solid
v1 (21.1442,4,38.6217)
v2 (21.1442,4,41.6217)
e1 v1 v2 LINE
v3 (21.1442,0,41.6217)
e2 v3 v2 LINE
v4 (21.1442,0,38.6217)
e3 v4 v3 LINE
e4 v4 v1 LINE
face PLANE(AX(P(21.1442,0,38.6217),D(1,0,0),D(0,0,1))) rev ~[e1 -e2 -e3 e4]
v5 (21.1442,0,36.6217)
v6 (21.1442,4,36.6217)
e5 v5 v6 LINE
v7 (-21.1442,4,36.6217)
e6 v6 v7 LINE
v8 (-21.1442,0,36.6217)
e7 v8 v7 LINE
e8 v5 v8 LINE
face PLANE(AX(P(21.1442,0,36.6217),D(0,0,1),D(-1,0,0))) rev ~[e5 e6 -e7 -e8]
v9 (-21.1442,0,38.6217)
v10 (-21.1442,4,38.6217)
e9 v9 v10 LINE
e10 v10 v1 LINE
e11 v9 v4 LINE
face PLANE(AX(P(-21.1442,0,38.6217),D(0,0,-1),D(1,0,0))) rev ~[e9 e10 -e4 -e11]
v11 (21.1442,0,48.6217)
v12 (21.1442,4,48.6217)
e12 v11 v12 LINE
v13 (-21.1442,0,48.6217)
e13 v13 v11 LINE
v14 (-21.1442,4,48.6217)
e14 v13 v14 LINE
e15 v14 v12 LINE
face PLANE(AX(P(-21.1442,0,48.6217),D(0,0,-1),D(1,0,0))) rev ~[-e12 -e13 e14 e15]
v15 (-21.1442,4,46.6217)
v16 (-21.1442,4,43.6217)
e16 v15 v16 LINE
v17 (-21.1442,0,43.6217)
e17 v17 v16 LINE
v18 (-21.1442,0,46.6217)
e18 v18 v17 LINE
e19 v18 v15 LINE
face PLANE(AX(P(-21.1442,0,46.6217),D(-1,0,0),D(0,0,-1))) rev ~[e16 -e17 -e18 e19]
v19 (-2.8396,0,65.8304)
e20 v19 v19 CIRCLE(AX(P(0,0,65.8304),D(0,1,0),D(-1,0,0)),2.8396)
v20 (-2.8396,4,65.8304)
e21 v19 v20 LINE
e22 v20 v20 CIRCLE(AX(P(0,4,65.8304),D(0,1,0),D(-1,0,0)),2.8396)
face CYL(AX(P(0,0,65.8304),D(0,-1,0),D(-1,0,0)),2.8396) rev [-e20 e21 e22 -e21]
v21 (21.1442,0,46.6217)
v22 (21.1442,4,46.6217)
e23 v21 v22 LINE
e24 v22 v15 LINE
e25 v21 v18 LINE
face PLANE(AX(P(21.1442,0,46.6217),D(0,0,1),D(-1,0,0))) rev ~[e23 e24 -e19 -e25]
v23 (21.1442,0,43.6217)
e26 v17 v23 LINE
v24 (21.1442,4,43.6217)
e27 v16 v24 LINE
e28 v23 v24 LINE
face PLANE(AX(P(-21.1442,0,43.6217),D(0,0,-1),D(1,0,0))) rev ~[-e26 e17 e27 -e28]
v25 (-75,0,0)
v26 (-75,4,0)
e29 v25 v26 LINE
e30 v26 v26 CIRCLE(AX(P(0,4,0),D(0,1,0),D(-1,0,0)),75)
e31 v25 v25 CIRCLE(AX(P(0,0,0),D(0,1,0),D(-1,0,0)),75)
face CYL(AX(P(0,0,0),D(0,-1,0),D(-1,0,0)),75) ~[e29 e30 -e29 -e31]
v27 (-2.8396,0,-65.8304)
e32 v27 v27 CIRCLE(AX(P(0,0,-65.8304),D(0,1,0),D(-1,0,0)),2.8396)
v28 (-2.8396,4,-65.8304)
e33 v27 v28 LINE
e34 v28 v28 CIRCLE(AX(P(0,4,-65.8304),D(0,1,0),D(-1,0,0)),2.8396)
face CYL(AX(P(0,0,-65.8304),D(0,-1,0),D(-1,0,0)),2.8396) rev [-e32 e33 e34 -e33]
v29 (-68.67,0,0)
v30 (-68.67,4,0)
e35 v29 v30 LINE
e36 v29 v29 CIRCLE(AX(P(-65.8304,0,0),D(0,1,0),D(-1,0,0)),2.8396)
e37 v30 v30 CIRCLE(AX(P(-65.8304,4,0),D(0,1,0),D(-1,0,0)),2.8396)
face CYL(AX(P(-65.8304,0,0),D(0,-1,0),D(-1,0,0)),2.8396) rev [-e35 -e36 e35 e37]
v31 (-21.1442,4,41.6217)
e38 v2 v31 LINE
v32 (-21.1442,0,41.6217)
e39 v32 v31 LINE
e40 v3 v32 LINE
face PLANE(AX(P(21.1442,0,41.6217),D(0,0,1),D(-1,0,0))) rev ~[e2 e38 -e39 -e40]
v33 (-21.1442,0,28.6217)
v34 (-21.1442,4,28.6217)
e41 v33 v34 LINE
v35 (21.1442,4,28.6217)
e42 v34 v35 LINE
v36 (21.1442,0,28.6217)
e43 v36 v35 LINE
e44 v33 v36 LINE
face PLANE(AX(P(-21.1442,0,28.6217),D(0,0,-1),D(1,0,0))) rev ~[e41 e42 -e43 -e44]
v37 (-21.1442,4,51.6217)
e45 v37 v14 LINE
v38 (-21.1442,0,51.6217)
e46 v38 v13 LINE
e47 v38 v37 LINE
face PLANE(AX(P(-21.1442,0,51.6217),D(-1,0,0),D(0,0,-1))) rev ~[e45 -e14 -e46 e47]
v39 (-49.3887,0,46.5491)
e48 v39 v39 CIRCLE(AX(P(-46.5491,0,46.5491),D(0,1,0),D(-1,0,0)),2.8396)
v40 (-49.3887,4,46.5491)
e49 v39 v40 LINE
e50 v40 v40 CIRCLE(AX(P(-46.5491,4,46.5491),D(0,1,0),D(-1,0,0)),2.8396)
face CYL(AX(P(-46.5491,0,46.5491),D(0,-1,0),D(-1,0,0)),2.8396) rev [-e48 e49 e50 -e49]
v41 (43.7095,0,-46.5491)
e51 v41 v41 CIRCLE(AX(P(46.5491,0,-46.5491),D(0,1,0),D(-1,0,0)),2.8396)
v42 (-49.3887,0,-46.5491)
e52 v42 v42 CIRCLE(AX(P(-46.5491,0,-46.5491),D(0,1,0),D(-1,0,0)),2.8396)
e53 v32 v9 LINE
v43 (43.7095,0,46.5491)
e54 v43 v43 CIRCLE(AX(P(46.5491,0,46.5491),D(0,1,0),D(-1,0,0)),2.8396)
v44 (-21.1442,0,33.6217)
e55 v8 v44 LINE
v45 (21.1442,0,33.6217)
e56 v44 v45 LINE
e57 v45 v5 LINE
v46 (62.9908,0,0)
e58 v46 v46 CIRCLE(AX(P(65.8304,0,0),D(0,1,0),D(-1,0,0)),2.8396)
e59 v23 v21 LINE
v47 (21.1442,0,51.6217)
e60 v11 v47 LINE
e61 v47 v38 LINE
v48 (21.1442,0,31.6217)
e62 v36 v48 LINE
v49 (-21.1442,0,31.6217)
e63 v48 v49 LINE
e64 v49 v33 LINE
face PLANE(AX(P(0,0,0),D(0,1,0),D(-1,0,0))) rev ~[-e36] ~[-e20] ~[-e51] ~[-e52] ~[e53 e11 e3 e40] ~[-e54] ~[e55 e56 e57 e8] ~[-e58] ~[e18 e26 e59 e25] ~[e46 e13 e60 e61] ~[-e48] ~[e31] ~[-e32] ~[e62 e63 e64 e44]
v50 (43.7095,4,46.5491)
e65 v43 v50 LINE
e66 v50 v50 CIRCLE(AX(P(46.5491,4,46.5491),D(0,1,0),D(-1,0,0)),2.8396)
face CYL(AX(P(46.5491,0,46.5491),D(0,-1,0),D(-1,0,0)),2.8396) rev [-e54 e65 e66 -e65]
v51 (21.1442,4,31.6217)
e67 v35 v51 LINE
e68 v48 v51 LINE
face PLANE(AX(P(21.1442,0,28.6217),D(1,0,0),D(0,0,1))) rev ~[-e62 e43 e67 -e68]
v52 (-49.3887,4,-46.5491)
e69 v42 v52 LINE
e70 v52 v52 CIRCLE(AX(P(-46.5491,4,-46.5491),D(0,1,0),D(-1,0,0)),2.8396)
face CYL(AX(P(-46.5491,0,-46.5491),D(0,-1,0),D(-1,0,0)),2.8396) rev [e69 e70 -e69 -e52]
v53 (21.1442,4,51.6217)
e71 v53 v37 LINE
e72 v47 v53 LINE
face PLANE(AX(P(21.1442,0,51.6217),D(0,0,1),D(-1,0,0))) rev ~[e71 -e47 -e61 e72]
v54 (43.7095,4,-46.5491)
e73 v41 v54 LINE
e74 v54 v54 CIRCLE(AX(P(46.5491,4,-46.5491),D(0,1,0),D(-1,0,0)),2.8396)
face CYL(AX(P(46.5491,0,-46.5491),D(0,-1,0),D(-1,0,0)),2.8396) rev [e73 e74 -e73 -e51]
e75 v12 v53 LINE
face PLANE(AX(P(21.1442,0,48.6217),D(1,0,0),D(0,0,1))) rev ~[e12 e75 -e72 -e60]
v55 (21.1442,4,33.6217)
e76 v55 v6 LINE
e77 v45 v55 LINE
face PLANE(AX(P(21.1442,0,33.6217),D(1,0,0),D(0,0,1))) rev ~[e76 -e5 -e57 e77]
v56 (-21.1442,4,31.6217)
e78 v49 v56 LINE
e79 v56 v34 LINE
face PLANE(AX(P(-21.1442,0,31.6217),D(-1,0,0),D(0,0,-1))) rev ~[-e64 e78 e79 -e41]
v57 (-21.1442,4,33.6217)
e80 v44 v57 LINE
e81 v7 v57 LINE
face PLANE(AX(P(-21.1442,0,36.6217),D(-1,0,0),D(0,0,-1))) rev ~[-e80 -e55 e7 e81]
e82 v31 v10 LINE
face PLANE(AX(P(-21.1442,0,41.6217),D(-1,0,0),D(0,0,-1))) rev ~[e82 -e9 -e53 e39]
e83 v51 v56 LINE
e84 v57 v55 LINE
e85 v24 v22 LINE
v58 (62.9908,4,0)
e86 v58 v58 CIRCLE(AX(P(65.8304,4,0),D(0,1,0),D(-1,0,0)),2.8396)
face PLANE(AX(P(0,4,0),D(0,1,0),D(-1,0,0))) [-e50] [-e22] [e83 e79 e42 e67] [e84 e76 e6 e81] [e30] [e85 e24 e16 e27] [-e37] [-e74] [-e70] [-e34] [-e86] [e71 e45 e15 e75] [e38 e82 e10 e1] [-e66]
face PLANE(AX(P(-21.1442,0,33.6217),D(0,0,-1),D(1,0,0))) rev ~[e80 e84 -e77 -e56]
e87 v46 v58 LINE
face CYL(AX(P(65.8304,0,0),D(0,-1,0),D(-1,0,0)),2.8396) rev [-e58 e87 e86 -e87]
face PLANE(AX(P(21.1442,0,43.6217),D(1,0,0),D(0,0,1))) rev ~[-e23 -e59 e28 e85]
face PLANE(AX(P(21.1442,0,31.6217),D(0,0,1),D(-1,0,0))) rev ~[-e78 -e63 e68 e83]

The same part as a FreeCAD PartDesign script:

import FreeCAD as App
import Part
import Sketcher
Q = App.Units.Quantity

doc = App.newDocument("Part")
body = doc.addObject("PartDesign::Body", "Body")

sketch1 = doc.addObject("Sketcher::SketchObject", "Sketch")
body.addObject(sketch1)
sketch1.AttachmentSupport = (doc.XZ_Plane, [""])
sketch1.MapMode = "FlatFace"
sketch1.addGeometry(Part.Circle(App.Vector(0, 0, 0), App.Vector(0, 0, 1), 75), False)
sketch1.addGeometry(Part.Circle(App.Vector(46.5491, -46.5491, 0), App.Vector(0, 0, 1), 2.8396), False)
sketch1.addGeometry(Part.Circle(App.Vector(0, -65.8304, 0), App.Vector(0, 0, 1), 2.8396), False)
sketch1.addGeometry(Part.Circle(App.Vector(-46.5491, -46.5491, 0), App.Vector(0, 0, 1), 2.8396), False)
sketch1.addGeometry(Part.Circle(App.Vector(65.8304, 0, 0), App.Vector(0, 0, 1), 2.8396), False)
sketch1.addGeometry(Part.Circle(App.Vector(46.5491, 46.5491, 0), App.Vector(0, 0, 1), 2.8396), False)
sketch1.addGeometry(Part.LineSegment(App.Vector(21.1442, 28.6217, 0), App.Vector(21.1442, 31.6217, 0)), False)
sketch1.addGeometry(Part.LineSegment(App.Vector(21.1442, 31.6217, 0), App.Vector(-21.1442, 31.6217, 0)), False)
sketch1.addGeometry(Part.LineSegment(App.Vector(-21.1442, 31.6217, 0), App.Vector(-21.1442, 28.6217, 0)), False)
sketch1.addGeometry(Part.LineSegment(App.Vector(-21.1442, 28.6217, 0), App.Vector(21.1442, 28.6217, 0)), False)
sketch1.addGeometry(Part.LineSegment(App.Vector(21.1442, 33.6217, 0), App.Vector(21.1442, 36.6217, 0)), False)
sketch1.addGeometry(Part.LineSegment(App.Vector(21.1442, 36.6217, 0), App.Vector(-21.1442, 36.6217, 0)), False)
sketch1.addGeometry(Part.LineSegment(App.Vector(-21.1442, 36.6217, 0), App.Vector(-21.1442, 33.6217, 0)), False)
sketch1.addGeometry(Part.LineSegment(App.Vector(-21.1442, 33.6217, 0), App.Vector(21.1442, 33.6217, 0)), False)
sketch1.addGeometry(Part.Circle(App.Vector(-65.8304, 0, 0), App.Vector(0, 0, 1), 2.8396), False)
sketch1.addGeometry(Part.LineSegment(App.Vector(21.1442, 38.6217, 0), App.Vector(21.1442, 41.6217, 0)), False)
sketch1.addGeometry(Part.LineSegment(App.Vector(21.1442, 41.6217, 0), App.Vector(-21.1442, 41.6217, 0)), False)
sketch1.addGeometry(Part.LineSegment(App.Vector(-21.1442, 41.6217, 0), App.Vector(-21.1442, 38.6217, 0)), False)
sketch1.addGeometry(Part.LineSegment(App.Vector(-21.1442, 38.6217, 0), App.Vector(21.1442, 38.6217, 0)), False)
sketch1.addGeometry(Part.LineSegment(App.Vector(21.1442, 43.6217, 0), App.Vector(21.1442, 46.6217, 0)), False)
sketch1.addGeometry(Part.LineSegment(App.Vector(21.1442, 46.6217, 0), App.Vector(-21.1442, 46.6217, 0)), False)
sketch1.addGeometry(Part.LineSegment(App.Vector(-21.1442, 46.6217, 0), App.Vector(-21.1442, 43.6217, 0)), False)
sketch1.addGeometry(Part.LineSegment(App.Vector(-21.1442, 43.6217, 0), App.Vector(21.1442, 43.6217, 0)), False)
sketch1.addGeometry(Part.LineSegment(App.Vector(21.1442, 48.6217, 0), App.Vector(21.1442, 51.6217, 0)), False)
sketch1.addGeometry(Part.LineSegment(App.Vector(21.1442, 51.6217, 0), App.Vector(-21.1442, 51.6217, 0)), False)
sketch1.addGeometry(Part.LineSegment(App.Vector(-21.1442, 51.6217, 0), App.Vector(-21.1442, 48.6217, 0)), False)
sketch1.addGeometry(Part.LineSegment(App.Vector(-21.1442, 48.6217, 0), App.Vector(21.1442, 48.6217, 0)), False)
sketch1.addGeometry(Part.Circle(App.Vector(0, 65.8304, 0), App.Vector(0, 0, 1), 2.8396), False)
sketch1.addGeometry(Part.Circle(App.Vector(-46.5491, 46.5491, 0), App.Vector(0, 0, 1), 2.8396), False)
sketch1.addConstraint(Sketcher.Constraint("Coincident", 6, 2, 7, 1))
sketch1.addConstraint(Sketcher.Constraint("Coincident", 7, 2, 8, 1))
sketch1.addConstraint(Sketcher.Constraint("Coincident", 8, 2, 9, 1))
sketch1.addConstraint(Sketcher.Constraint("Coincident", 9, 2, 6, 1))
sketch1.addConstraint(Sketcher.Constraint("Coincident", 10, 2, 11, 1))
sketch1.addConstraint(Sketcher.Constraint("Coincident", 11, 2, 12, 1))
sketch1.addConstraint(Sketcher.Constraint("Coincident", 12, 2, 13, 1))
sketch1.addConstraint(Sketcher.Constraint("Coincident", 13, 2, 10, 1))
sketch1.addConstraint(Sketcher.Constraint("Coincident", 15, 2, 16, 1))
sketch1.addConstraint(Sketcher.Constraint("Coincident", 16, 2, 17, 1))
sketch1.addConstraint(Sketcher.Constraint("Coincident", 17, 2, 18, 1))
sketch1.addConstraint(Sketcher.Constraint("Coincident", 18, 2, 15, 1))
sketch1.addConstraint(Sketcher.Constraint("Coincident", 19, 2, 20, 1))
sketch1.addConstraint(Sketcher.Constraint("Coincident", 20, 2, 21, 1))
sketch1.addConstraint(Sketcher.Constraint("Coincident", 21, 2, 22, 1))
sketch1.addConstraint(Sketcher.Constraint("Coincident", 22, 2, 19, 1))
sketch1.addConstraint(Sketcher.Constraint("Coincident", 23, 2, 24, 1))
sketch1.addConstraint(Sketcher.Constraint("Coincident", 24, 2, 25, 1))
sketch1.addConstraint(Sketcher.Constraint("Coincident", 25, 2, 26, 1))
sketch1.addConstraint(Sketcher.Constraint("Coincident", 26, 2, 23, 1))
sketch1.addConstraint(Sketcher.Constraint("Vertical", 6))
sketch1.addConstraint(Sketcher.Constraint("Horizontal", 7))
sketch1.addConstraint(Sketcher.Constraint("Vertical", 8))
sketch1.addConstraint(Sketcher.Constraint("Horizontal", 9))
sketch1.addConstraint(Sketcher.Constraint("Vertical", 10))
sketch1.addConstraint(Sketcher.Constraint("Horizontal", 11))
sketch1.addConstraint(Sketcher.Constraint("Vertical", 12))
sketch1.addConstraint(Sketcher.Constraint("Horizontal", 13))
sketch1.addConstraint(Sketcher.Constraint("Vertical", 15))
sketch1.addConstraint(Sketcher.Constraint("Horizontal", 16))
sketch1.addConstraint(Sketcher.Constraint("Vertical", 17))
sketch1.addConstraint(Sketcher.Constraint("Horizontal", 18))
sketch1.addConstraint(Sketcher.Constraint("Vertical", 19))
sketch1.addConstraint(Sketcher.Constraint("Horizontal", 20))
sketch1.addConstraint(Sketcher.Constraint("Vertical", 21))
sketch1.addConstraint(Sketcher.Constraint("Horizontal", 22))
sketch1.addConstraint(Sketcher.Constraint("Vertical", 23))
sketch1.addConstraint(Sketcher.Constraint("Horizontal", 24))
sketch1.addConstraint(Sketcher.Constraint("Vertical", 25))
sketch1.addConstraint(Sketcher.Constraint("Horizontal", 26))
sketch1.addConstraint(Sketcher.Constraint("Coincident", 0, 3, -1, 1))
sketch1.addConstraint(Sketcher.Constraint("Equal", 1, 2))
sketch1.addConstraint(Sketcher.Constraint("Equal", 2, 3))
sketch1.addConstraint(Sketcher.Constraint("Equal", 3, 4))
sketch1.addConstraint(Sketcher.Constraint("Equal", 4, 5))
sketch1.addConstraint(Sketcher.Constraint("Equal", 5, 14))
sketch1.addConstraint(Sketcher.Constraint("Equal", 14, 27))
sketch1.addConstraint(Sketcher.Constraint("Equal", 27, 28))
sketch1.addConstraint(Sketcher.Constraint("Symmetric", 3, 3, 5, 3, -1, 1))
sketch1.addConstraint(Sketcher.Constraint("Symmetric", 4, 3, 14, 3, -1, 1))
sketch1.addConstraint(Sketcher.Constraint("Symmetric", 2, 3, 27, 3, -1, 1))
sketch1.addConstraint(Sketcher.Constraint("Symmetric", 1, 3, 28, 3, -1, 1))
sketch1.addConstraint(Sketcher.Constraint("Symmetric", 1, 3, 3, 3, -2))
sketch1.addConstraint(Sketcher.Constraint("PointOnObject", 2, 3, -2))
sketch1.addConstraint(Sketcher.Constraint("PointOnObject", 4, 3, -1))
sketch1.addConstraint(Sketcher.Constraint("Vertical", 9, 2, 10, 2))
sketch1.addConstraint(Sketcher.Constraint("Vertical", 8, 2, 11, 2))
sketch1.addConstraint(Sketcher.Constraint("Vertical", 13, 2, 15, 2))
sketch1.addConstraint(Sketcher.Constraint("Vertical", 12, 2, 16, 2))
sketch1.addConstraint(Sketcher.Constraint("Vertical", 18, 2, 19, 2))
sketch1.addConstraint(Sketcher.Constraint("Vertical", 17, 2, 20, 2))
sketch1.addConstraint(Sketcher.Constraint("Vertical", 22, 2, 23, 2))
sketch1.addConstraint(Sketcher.Constraint("Vertical", 21, 2, 24, 2))
sketch1.addConstraint(Sketcher.Constraint("Equal", 8, 10))
sketch1.addConstraint(Sketcher.Constraint("Equal", 12, 15))
sketch1.addConstraint(Sketcher.Constraint("Equal", 17, 19))
sketch1.addConstraint(Sketcher.Constraint("Equal", 21, 23))
sketch1.addConstraint(Sketcher.Constraint("Diameter", 0, Q("150 mm")))
sketch1.addConstraint(Sketcher.Constraint("DistanceY", 6, 1, 6, 2, Q("3 mm")))
sketch1.addConstraint(Sketcher.Constraint("DistanceY", 7, 2, 12, 2, Q("2 mm")))
sketch1.addConstraint(Sketcher.Constraint("DistanceY", 11, 2, 17, 2, Q("2 mm")))
sketch1.addConstraint(Sketcher.Constraint("DistanceY", 16, 2, 21, 2, Q("2 mm")))
sketch1.addConstraint(Sketcher.Constraint("DistanceY", 20, 2, 25, 2, Q("2 mm")))
sketch1.addConstraint(Sketcher.Constraint("Diameter", 1, Q("5.6792 mm")))
sketch1.addConstraint(Sketcher.Constraint("DistanceX", 7, 2, 7, 1, Q("42.2884 mm")))
sketch1.addConstraint(Sketcher.Constraint("DistanceX", -1, 1, 1, 3, Q("46.549 mm")))
sketch1.addConstraint(Sketcher.Constraint("DistanceY", 1, 3, -1, 1, Q("46.549 mm")))
sketch1.addConstraint(Sketcher.Constraint("DistanceX", 6, 2, 5, 3, Q("25.405 mm")))
sketch1.addConstraint(Sketcher.Constraint("DistanceY", 2, 3, -1, 1, Q("65.8304 mm")))
sketch1.addConstraint(Sketcher.Constraint("DistanceX", -1, 1, 4, 3, Q("65.8304 mm")))
sketch1.addConstraint(Sketcher.Constraint("DistanceY", -1, 1, 6, 2, Q("31.6217 mm")))
pad1 = doc.addObject("PartDesign::Pad", "Pad")
body.addObject(pad1)
pad1.Profile = sketch1
pad1.Length = 4
pad1.Reversed = True

doc.recompute()
